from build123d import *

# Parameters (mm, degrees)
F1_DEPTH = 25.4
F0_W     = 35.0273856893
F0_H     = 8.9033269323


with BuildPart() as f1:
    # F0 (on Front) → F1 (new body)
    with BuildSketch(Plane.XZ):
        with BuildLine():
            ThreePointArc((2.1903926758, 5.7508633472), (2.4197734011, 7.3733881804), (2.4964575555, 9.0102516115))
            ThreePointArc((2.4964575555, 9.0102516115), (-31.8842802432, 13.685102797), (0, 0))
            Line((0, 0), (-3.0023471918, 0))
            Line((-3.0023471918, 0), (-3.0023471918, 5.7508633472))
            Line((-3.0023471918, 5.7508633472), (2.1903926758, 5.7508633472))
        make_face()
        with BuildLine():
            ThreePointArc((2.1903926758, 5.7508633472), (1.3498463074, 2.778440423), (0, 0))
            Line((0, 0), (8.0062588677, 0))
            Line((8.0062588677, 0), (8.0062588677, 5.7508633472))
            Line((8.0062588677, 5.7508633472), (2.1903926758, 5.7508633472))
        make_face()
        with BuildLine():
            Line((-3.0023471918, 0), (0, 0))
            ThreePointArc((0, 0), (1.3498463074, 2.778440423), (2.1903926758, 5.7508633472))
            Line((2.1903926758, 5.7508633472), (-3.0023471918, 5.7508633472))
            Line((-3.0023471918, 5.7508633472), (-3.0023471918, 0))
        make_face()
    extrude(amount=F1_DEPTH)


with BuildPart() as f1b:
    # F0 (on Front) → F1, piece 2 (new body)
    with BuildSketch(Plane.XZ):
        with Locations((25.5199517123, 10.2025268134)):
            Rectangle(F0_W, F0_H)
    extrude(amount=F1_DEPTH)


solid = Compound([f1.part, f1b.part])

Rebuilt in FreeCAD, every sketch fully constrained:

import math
import FreeCAD as App
import Part
import Sketcher

V = App.Vector
Q = App.Units.Quantity


def add_polygon(sketch, points):
    """Adds a closed chain of lines whose ends are joined by coincident constraints."""
    first, n = sketch.GeometryCount, len(points)
    for a, b in zip(points, points[1:] + points[:1]):
        sketch.addGeometry(Part.LineSegment(App.Vector(*a, 0), App.Vector(*b, 0)), False)
    for i in range(n):
        sketch.addConstraint(Sketcher.Constraint("Coincident", first + i, 2, first + (i + 1) % n, 1))

doc = App.newDocument("Part")
body = doc.addObject("PartDesign::Body", "Body")

# Sketch on XZ plane
sketch1 = body.newObject("Sketcher::SketchObject", "Sketch")
sketch1.AttachmentSupport = (doc.getObject("XZ_Plane"), [""])
sketch1.MapMode = "FlatFace"
sketch1.addGeometry(Part.ArcOfCircle(Part.Circle(V(-15, 9, 0), V(0, 0, 1), 17.5), math.radians(-10.73), math.radians(0)), False)
sketch1.addGeometry(Part.ArcOfCircle(Part.Circle(V(-15, 9, 0), V(0, 0, 1), 17.5), math.radians(0), math.radians(329)), False)
sketch1.addGeometry(Part.LineSegment(V(0, 0, 0), V(8, 0, 0)), False)
sketch1.addGeometry(Part.LineSegment(V(8, 0, 0), V(8, 5.8, 0)), False)
sketch1.addGeometry(Part.LineSegment(V(8, 5.8, 0), V(2.2, 5.8, 0)), False)
sketch1.addConstraint(Sketcher.Constraint("Tangent", 0, 2, 1, 1))
sketch1.addConstraint(Sketcher.Constraint("Coincident", 1, 2, 2, 1))
sketch1.addConstraint(Sketcher.Constraint("Coincident", 2, 2, 3, 1))
sketch1.addConstraint(Sketcher.Constraint("Coincident", 3, 2, 4, 1))
sketch1.addConstraint(Sketcher.Constraint("Coincident", 4, 2, 0, 1))
sketch1.addConstraint(Sketcher.Constraint("Horizontal", 2))
sketch1.addConstraint(Sketcher.Constraint("Vertical", 3))
sketch1.addConstraint(Sketcher.Constraint("Horizontal", 4))
sketch1.addConstraint(Sketcher.Constraint("Coincident", 1, 2, -1, 1))
sketch1.addConstraint(Sketcher.Constraint("Equal", 0, 1))
sketch1.addConstraint(Sketcher.Constraint("Horizontal", 1, 3, 0, 2))
sketch1.addConstraint(Sketcher.Constraint("Radius", 0, 17.508196))
sketch1.addConstraint(Sketcher.Constraint("DistanceX", 2, 1, 2, 2, 8.006259))
sketch1.addConstraint(Sketcher.Constraint("DistanceX", 0, 2, 2, 2, 5.509801))
sketch1.addConstraint(Sketcher.Constraint("DistanceX", 4, 2, 4, 1, 5.815866))
pad1 = body.newObject("PartDesign::Pad", "Pad")
pad1.Profile = sketch1
pad1.Length = Q("1 in")
body2 = doc.addObject("PartDesign::Body", "Body001")

# Sketch on XZ plane
sketch2 = body2.newObject("Sketcher::SketchObject", "Sketch001")
sketch2.AttachmentSupport = (doc.getObject("XZ_Plane001"), [""])
sketch2.MapMode = "FlatFace"
add_polygon(sketch2, [(8, 15), (8, 6), (43, 6), (43, 15)])  # lines 0-3
sketch2.addConstraint(Sketcher.Constraint("Vertical", 0))
sketch2.addConstraint(Sketcher.Constraint("Horizontal", 1))
sketch2.addConstraint(Sketcher.Constraint("Vertical", 2))
sketch2.addConstraint(Sketcher.Constraint("Horizontal", 3))
sketch2.addConstraint(Sketcher.Constraint("DistanceX", 1, 1, 1, 2, 35.027386))
sketch2.addConstraint(Sketcher.Constraint("DistanceY", 0, 2, 0, 1, 8.903327))
sketch2.addConstraint(Sketcher.Constraint("DistanceX", -1, 1, 0, 2, 8.006259))
sketch2.addConstraint(Sketcher.Constraint("DistanceY", -1, 1, 2, 2, 14.65419))
pad2 = body2.newObject("PartDesign::Pad", "Pad001")
pad2.Profile = sketch2
pad2.Length = Q("1 in")

doc.recompute()
